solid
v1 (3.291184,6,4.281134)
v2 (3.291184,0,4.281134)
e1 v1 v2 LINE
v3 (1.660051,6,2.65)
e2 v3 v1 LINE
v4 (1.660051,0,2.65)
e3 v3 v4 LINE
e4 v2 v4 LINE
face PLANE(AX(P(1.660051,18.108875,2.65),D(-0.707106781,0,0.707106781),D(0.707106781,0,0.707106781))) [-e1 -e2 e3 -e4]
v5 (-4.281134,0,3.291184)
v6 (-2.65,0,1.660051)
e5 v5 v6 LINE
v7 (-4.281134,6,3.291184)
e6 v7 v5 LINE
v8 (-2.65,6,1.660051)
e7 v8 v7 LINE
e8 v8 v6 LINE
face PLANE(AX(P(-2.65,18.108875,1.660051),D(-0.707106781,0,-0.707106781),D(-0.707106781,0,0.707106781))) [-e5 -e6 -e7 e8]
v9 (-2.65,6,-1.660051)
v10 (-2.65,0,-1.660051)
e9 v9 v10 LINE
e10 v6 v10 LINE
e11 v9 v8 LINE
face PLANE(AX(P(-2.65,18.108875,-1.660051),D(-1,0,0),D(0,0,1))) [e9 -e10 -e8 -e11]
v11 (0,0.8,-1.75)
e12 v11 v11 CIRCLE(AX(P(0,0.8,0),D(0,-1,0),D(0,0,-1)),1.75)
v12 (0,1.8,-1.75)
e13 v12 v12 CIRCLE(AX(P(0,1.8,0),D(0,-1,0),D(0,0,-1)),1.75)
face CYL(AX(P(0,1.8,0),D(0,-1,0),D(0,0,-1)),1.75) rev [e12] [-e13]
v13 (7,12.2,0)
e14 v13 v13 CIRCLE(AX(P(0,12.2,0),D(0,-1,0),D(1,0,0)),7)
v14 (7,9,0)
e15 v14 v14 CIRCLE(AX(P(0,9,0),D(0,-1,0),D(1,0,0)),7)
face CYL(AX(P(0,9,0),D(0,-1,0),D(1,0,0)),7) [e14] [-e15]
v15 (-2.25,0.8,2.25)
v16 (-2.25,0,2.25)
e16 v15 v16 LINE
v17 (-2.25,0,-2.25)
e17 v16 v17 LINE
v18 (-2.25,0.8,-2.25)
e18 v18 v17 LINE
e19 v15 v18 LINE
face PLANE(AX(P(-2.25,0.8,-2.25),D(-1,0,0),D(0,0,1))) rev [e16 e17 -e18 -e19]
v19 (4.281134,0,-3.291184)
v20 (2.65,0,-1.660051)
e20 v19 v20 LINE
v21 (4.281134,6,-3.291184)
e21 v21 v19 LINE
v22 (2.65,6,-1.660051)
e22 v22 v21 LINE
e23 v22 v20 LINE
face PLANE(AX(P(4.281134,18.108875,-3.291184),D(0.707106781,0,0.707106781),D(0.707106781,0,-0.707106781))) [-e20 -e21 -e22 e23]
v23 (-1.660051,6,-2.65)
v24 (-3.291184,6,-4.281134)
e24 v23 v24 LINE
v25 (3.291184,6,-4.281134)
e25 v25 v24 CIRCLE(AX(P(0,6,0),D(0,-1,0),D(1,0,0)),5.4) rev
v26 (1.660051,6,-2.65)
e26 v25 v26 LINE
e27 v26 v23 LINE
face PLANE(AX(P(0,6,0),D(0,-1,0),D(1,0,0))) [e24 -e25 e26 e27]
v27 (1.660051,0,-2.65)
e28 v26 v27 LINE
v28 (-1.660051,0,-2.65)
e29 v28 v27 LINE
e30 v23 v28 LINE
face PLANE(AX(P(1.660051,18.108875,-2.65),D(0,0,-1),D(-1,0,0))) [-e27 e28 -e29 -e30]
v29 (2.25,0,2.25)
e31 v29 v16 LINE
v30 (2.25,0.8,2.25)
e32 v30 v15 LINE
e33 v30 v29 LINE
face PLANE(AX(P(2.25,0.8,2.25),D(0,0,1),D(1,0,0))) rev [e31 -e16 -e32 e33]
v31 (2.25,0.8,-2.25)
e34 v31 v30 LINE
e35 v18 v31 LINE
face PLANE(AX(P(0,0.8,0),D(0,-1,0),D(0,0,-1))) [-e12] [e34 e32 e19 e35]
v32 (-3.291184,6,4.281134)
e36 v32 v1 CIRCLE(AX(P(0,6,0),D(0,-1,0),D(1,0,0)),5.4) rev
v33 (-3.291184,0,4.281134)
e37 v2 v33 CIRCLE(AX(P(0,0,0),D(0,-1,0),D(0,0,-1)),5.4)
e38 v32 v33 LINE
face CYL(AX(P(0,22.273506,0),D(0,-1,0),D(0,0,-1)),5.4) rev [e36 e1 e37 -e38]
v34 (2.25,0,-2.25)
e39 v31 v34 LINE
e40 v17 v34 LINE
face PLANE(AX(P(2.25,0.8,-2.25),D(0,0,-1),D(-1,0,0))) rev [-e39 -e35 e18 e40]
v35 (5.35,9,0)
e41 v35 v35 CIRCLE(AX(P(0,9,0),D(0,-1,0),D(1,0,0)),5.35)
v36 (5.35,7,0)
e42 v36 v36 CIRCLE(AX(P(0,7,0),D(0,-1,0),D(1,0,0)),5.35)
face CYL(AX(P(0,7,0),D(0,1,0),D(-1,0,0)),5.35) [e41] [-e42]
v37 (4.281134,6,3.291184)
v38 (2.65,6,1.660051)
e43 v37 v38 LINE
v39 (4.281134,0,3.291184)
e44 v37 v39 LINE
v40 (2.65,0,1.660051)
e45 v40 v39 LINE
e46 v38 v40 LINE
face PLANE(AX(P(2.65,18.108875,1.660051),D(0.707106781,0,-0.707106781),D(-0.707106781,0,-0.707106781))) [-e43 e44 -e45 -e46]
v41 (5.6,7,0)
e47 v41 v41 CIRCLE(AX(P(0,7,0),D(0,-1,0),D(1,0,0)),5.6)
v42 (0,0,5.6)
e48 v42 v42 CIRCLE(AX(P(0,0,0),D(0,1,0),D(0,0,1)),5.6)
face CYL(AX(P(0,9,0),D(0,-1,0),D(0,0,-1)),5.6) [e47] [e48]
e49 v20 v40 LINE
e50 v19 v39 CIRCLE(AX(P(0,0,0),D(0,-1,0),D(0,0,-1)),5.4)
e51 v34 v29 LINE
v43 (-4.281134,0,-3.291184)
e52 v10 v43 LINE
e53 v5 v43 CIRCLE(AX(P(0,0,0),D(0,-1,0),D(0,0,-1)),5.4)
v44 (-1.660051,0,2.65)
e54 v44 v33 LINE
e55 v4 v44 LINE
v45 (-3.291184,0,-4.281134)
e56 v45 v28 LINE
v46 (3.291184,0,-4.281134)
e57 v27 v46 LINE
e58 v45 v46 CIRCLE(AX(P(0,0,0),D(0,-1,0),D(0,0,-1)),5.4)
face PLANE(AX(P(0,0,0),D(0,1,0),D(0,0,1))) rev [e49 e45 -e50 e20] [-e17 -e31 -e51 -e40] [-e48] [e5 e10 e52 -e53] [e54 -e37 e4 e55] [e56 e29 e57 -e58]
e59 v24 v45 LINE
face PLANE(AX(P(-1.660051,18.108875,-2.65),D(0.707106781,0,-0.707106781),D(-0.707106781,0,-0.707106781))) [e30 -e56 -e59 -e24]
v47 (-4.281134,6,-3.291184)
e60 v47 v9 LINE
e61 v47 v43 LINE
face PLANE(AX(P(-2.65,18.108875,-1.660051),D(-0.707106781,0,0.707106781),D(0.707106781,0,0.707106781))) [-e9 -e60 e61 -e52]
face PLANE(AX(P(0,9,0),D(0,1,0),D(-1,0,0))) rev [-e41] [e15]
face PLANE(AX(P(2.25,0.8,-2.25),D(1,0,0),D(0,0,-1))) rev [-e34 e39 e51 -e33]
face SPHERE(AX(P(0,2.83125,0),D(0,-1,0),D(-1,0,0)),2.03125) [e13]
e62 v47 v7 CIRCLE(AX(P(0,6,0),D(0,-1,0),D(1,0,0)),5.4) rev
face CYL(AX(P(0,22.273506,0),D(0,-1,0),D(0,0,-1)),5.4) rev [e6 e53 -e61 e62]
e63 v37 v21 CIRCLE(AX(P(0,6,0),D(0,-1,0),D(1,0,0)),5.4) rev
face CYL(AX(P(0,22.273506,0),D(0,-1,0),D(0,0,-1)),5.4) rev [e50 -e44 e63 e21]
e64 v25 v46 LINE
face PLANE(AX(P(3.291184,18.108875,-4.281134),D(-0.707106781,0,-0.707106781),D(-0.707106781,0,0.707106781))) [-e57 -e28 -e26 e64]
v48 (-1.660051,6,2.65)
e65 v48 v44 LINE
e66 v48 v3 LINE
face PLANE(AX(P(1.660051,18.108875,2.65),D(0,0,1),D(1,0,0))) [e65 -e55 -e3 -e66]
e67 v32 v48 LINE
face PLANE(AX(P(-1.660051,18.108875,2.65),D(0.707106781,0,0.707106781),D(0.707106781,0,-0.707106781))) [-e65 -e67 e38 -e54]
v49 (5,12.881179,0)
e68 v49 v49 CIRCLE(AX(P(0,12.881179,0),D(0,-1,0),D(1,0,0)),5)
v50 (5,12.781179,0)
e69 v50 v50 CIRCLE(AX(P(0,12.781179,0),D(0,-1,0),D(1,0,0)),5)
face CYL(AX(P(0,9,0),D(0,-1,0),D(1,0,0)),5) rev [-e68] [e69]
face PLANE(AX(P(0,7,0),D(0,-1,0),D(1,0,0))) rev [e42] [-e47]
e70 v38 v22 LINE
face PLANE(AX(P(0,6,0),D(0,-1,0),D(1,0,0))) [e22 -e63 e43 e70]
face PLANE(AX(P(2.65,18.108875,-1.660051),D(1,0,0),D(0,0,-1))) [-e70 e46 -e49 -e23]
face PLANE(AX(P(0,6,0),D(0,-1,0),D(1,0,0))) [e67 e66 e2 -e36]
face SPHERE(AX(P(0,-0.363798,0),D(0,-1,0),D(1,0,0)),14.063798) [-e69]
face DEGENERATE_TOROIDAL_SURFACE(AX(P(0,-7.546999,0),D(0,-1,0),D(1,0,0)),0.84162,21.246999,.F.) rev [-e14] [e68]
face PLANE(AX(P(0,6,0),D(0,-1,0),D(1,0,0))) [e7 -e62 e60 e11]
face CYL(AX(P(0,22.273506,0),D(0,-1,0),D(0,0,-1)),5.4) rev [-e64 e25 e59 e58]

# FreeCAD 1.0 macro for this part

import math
import FreeCAD as App
import Part
import Sketcher
Q = App.Units.Quantity

doc = App.newDocument("Part")
body = doc.addObject("PartDesign::Body", "Body")

# Sketch on XZ plane
sketch1 = body.newObject("Sketcher::SketchObject", "Sketch")
sketch1.AttachmentSupport = (doc.getObject("XZ_Plane"), [""])
sketch1.MapMode = "FlatFace"
sketch1.addGeometry(Part.Circle(App.Vector(0, 0, 0), App.Vector(0, 0, 1), 5.6), False)
sketch1.addConstraint(Sketcher.Constraint("Coincident", 0, 3, -1, 1))
sketch1.addConstraint(Sketcher.Constraint("Diameter", 0, Q("11.2 mm")))
pad1 = body.newObject("PartDesign::Pad", "Pad")
pad1.Profile = sketch1
pad1.Length = 9
pad1.Reversed = True

# Sketch on XY plane
sketch2 = body.newObject("Sketcher::SketchObject", "Sketch001")
sketch2.AttachmentSupport = (doc.getObject("XY_Plane"), [""])
sketch2.MapMode = "FlatFace"
sketch2.addGeometry(Part.LineSegment(App.Vector(0, 9, 0), App.Vector(0, 13.7, 0)), False)
sketch2.addGeometry(Part.ArcOfCircle(Part.Circle(App.Vector(0, -0.363798, 0), App.Vector(0, 0, 1), 14.063798), math.radians(90), math.radians(110.825485)), False)
sketch2.addGeometry(Part.LineSegment(App.Vector(-5, 12.781179, 0), App.Vector(-5, 12.881179, 0)), False)
sketch2.addGeometry(Part.ArcOfCircle(Part.Circle(App.Vector(0.84162, -7.546999, 0), App.Vector(0, 0, 1), 21.246999), math.radians(105.958353), math.radians(111.658243)), False)
sketch2.addGeometry(Part.LineSegment(App.Vector(-7, 12.2, 0), App.Vector(-7, 9, 0)), False)
sketch2.addGeometry(Part.LineSegment(App.Vector(-7, 9, 0), App.Vector(0, 9, 0)), False)
sketch2.addConstraint(Sketcher.Constraint("Coincident", 0, 2, 1, 1))
sketch2.addConstraint(Sketcher.Constraint("Coincident", 1, 2, 2, 1))
sketch2.addConstraint(Sketcher.Constraint("Coincident", 2, 2, 3, 1))
sketch2.addConstraint(Sketcher.Constraint("Coincident", 3, 2, 4, 1))
sketch2.addConstraint(Sketcher.Constraint("Coincident", 4, 2, 5, 1))
sketch2.addConstraint(Sketcher.Constraint("Coincident", 5, 2, 0, 1))
sketch2.addConstraint(Sketcher.Constraint("Vertical", 0))
sketch2.addConstraint(Sketcher.Constraint("Vertical", 2))
sketch2.addConstraint(Sketcher.Constraint("Vertical", 4))
sketch2.addConstraint(Sketcher.Constraint("Horizontal", 5))
sketch2.addConstraint(Sketcher.Constraint("PointOnObject", 1, 3, -2))
sketch2.addConstraint(Sketcher.Constraint("PointOnObject", 0, 2, -2))
sketch2.addConstraint(Sketcher.Constraint("DistanceX", 5, 1, 5, 2, Q("7 mm")))
sketch2.addConstraint(Sketcher.Constraint("DistanceY", 0, 1, 0, 2, Q("4.7 mm")))
sketch2.addConstraint(Sketcher.Constraint("DistanceY", 2, 1, 2, 2, Q("0.1 mm")))
sketch2.addConstraint(Sketcher.Constraint("DistanceY", 4, 2, 4, 1, Q("3.2 mm")))
sketch2.addConstraint(Sketcher.Constraint("DistanceX", 1, 2, -1, 1, Q("5 mm")))
sketch2.addConstraint(Sketcher.Constraint("DistanceY", -1, 1, 4, 2, Q("9 mm")))
sketch2.addConstraint(Sketcher.Constraint("Radius", 3, Q("21.246999 mm")))
sketch2.addConstraint(Sketcher.Constraint("Radius", 1, Q("14.063798 mm")))
revolution = body.newObject("PartDesign::Revolution", "Revolution")
revolution.Profile = sketch2
revolution.ReferenceAxis = (sketch2, ["V_Axis"])
revolution.Angle = 360

# Sketch on XZ plane
sketch3 = body.newObject("Sketcher::SketchObject", "Sketch002")
sketch3.AttachmentSupport = (doc.getObject("XZ_Plane"), [""])
sketch3.MapMode = "FlatFace"
sketch3.AttachmentOffset = App.Placement(App.Vector(0, 0, -9), App.Rotation())
sketch3.addGeometry(Part.Circle(App.Vector(0, 0, 0), App.Vector(0, 0, 1), 5.6), False)
sketch3.addGeometry(Part.Circle(App.Vector(0, 0, 0), App.Vector(0, 0, 1), 5.35), False)
sketch3.addConstraint(Sketcher.Constraint("Coincident", 0, 3, -1, 1))
sketch3.addConstraint(Sketcher.Constraint("Coincident", 1, 3, -1, 1))
sketch3.addConstraint(Sketcher.Constraint("Diameter", 0, Q("11.2 mm")))
sketch3.addConstraint(Sketcher.Constraint("Diameter", 1, Q("10.7 mm")))
pocket1 = body.newObject("PartDesign::Pocket", "Pocket")
pocket1.Profile = sketch3
pocket1.Length = 2
pocket1.Reversed = True

# Sketch on XZ plane
sketch4 = body.newObject("Sketcher::SketchObject", "Sketch003")
sketch4.AttachmentSupport = (doc.getObject("XZ_Plane"), [""])
sketch4.MapMode = "FlatFace"
sketch4.addGeometry(Part.Circle(App.Vector(0, 0, 0), App.Vector(0, 0, 1), 5.4), False)
sketch4.addConstraint(Sketcher.Constraint("Coincident", 0, 3, -1, 1))
sketch4.addConstraint(Sketcher.Constraint("Diameter", 0, Q("10.8 mm")))
pocket2 = body.newObject("PartDesign::Pocket", "Pocket001")
pocket2.Profile = sketch4
pocket2.Length = 6

# Sketch on XZ plane
sketch5 = body.newObject("Sketcher::SketchObject", "Sketch004")
sketch5.AttachmentSupport = (doc.getObject("XZ_Plane"), [""])
sketch5.MapMode = "FlatFace"
sketch5.addGeometry(Part.LineSegment(App.Vector(1.660051, -2.65, 0), App.Vector(3.291184, -4.281134, 0)), False)
sketch5.addGeometry(Part.ArcOfCircle(Part.Circle(App.Vector(0, 0, 0), App.Vector(0, 0, 1), 5.4), math.radians(-52.44819), math.radians(-37.55181)), False)
sketch5.addGeometry(Part.LineSegment(App.Vector(4.281134, -3.291184, 0), App.Vector(2.65, -1.660051, 0)), False)
sketch5.addGeometry(Part.LineSegment(App.Vector(2.65, -1.660051, 0), App.Vector(2.65, 1.660051, 0)), False)
sketch5.addGeometry(Part.LineSegment(App.Vector(2.65, 1.660051, 0), App.Vector(4.281134, 3.291184, 0)), False)
sketch5.addGeometry(Part.ArcOfCircle(Part.Circle(App.Vector(0, 0, 0), App.Vector(0, 0, 1), 5.4), math.radians(37.55181), math.radians(52.44819)), False)
sketch5.addGeometry(Part.LineSegment(App.Vector(3.291184, 4.281134, 0), App.Vector(1.660051, 2.65, 0)), False)
sketch5.addGeometry(Part.LineSegment(App.Vector(1.660051, 2.65, 0), App.Vector(-1.660051, 2.65, 0)), False)
sketch5.addGeometry(Part.LineSegment(App.Vector(-1.660051, 2.65, 0), App.Vector(-3.291184, 4.281134, 0)), False)
sketch5.addGeometry(Part.ArcOfCircle(Part.Circle(App.Vector(0, 0, 0), App.Vector(0, 0, 1), 5.4), math.radians(127.55181), math.radians(142.44819)), False)
sketch5.addGeometry(Part.LineSegment(App.Vector(-4.281134, 3.291184, 0), App.Vector(-2.65, 1.660051, 0)), False)
sketch5.addGeometry(Part.LineSegment(App.Vector(-2.65, 1.660051, 0), App.Vector(-2.65, -1.660051, 0)), False)
sketch5.addGeometry(Part.LineSegment(App.Vector(-2.65, -1.660051, 0), App.Vector(-4.281134, -3.291184, 0)), False)
sketch5.addGeometry(Part.ArcOfCircle(Part.Circle(App.Vector(0, 0, 0), App.Vector(0, 0, 1), 5.4), math.radians(-142.44819), math.radians(-127.55181)), False)
sketch5.addGeometry(Part.LineSegment(App.Vector(-3.291184, -4.281134, 0), App.Vector(-1.660051, -2.65, 0)), False)
sketch5.addGeometry(Part.LineSegment(App.Vector(-1.660051, -2.65, 0), App.Vector(1.660051, -2.65, 0)), False)
sketch5.addConstraint(Sketcher.Constraint("Coincident", 0, 2, 1, 1))
sketch5.addConstraint(Sketcher.Constraint("Coincident", 1, 2, 2, 1))
sketch5.addConstraint(Sketcher.Constraint("Coincident", 2, 2, 3, 1))
sketch5.addConstraint(Sketcher.Constraint("Coincident", 3, 2, 4, 1))
sketch5.addConstraint(Sketcher.Constraint("Coincident", 4, 2, 5, 1))
sketch5.addConstraint(Sketcher.Constraint("Coincident", 5, 2, 6, 1))
sketch5.addConstraint(Sketcher.Constraint("Coincident", 6, 2, 7, 1))
sketch5.addConstraint(Sketcher.Constraint("Coincident", 7, 2, 8, 1))
sketch5.addConstraint(Sketcher.Constraint("Coincident", 8, 2, 9, 1))
sketch5.addConstraint(Sketcher.Constraint("Coincident", 9, 2, 10, 1))
sketch5.addConstraint(Sketcher.Constraint("Coincident", 10, 2, 11, 1))
sketch5.addConstraint(Sketcher.Constraint("Coincident", 11, 2, 12, 1))
sketch5.addConstraint(Sketcher.Constraint("Coincident", 12, 2, 13, 1))
sketch5.addConstraint(Sketcher.Constraint("Coincident", 13, 2, 14, 1))
sketch5.addConstraint(Sketcher.Constraint("Coincident", 14, 2, 15, 1))
sketch5.addConstraint(Sketcher.Constraint("Coincident", 15, 2, 0, 1))
sketch5.addConstraint(Sketcher.Constraint("Vertical", 3))
sketch5.addConstraint(Sketcher.Constraint("Horizontal", 7))
sketch5.addConstraint(Sketcher.Constraint("Vertical", 11))
sketch5.addConstraint(Sketcher.Constraint("Horizontal", 15))
sketch5.addConstraint(Sketcher.Constraint("Coincident", 1, 3, -1, 1))
sketch5.addConstraint(Sketcher.Constraint("Coincident", 5, 3, -1, 1))
sketch5.addConstraint(Sketcher.Constraint("Coincident", 9, 3, -1, 1))
sketch5.addConstraint(Sketcher.Constraint("Coincident", 13, 3, -1, 1))
sketch5.addConstraint(Sketcher.Constraint("Equal", 1, 5))
sketch5.addConstraint(Sketcher.Constraint("Equal", 5, 9))
sketch5.addConstraint(Sketcher.Constraint("Equal", 9, 13))
sketch5.addConstraint(Sketcher.Constraint("Symmetric", 2, 2, 10, 2, -1, 1))
sketch5.addConstraint(Sketcher.Constraint("Symmetric", 6, 2, 14, 2, -1, 1))
sketch5.addConstraint(Sketcher.Constraint("Parallel", 0, 2))
sketch5.addConstraint(Sketcher.Constraint("Perpendicular", 2, 4))
sketch5.addConstraint(Sketcher.Constraint("Parallel", 4, 6))
sketch5.addConstraint(Sketcher.Constraint("Perpendicular", 6, 8))
sketch5.addConstraint(Sketcher.Constraint("Parallel", 8, 10))
sketch5.addConstraint(Sketcher.Constraint("Perpendicular", 10, 12))
sketch5.addConstraint(Sketcher.Constraint("Parallel", 12, 14))
sketch5.addConstraint(Sketcher.Constraint("Horizontal", 5, 2, 8, 2))
sketch5.addConstraint(Sketcher.Constraint("Horizontal", 4, 2, 9, 2))
sketch5.addConstraint(Sketcher.Constraint("Horizontal", 3, 2, 10, 2))
sketch5.addConstraint(Sketcher.Constraint("Horizontal", 2, 2, 11, 2))
sketch5.addConstraint(Sketcher.Constraint("Horizontal", 0, 2, 13, 2))
sketch5.addConstraint(Sketcher.Constraint("Equal", 15, 3))
sketch5.addConstraint(Sketcher.Constraint("Equal", 0, 2))
sketch5.addConstraint(Sketcher.Constraint("Radius", 1, Q("5.4 mm")))
sketch5.addConstraint(Sketcher.Constraint("DistanceX", -1, 1, 2, 2, Q("2.65 mm")))
sketch5.addConstraint(Sketcher.Constraint("DistanceX", 7, 2, 7, 1, Q("3.320101 mm")))
pad2 = body.newObject("PartDesign::Pad", "Pad001")
pad2.Profile = sketch5
pad2.Length = 6
pad2.Reversed = True

# Sketch on XZ plane
sketch6 = body.newObject("Sketcher::SketchObject", "Sketch005")
sketch6.AttachmentSupport = (doc.getObject("XZ_Plane"), [""])
sketch6.MapMode = "FlatFace"
sketch6.addGeometry(Part.LineSegment(App.Vector(-2.25, 2.25, 0), App.Vector(-2.25, -2.25, 0)), False)
sketch6.addGeometry(Part.LineSegment(App.Vector(-2.25, -2.25, 0), App.Vector(2.25, -2.25, 0)), False)
sketch6.addGeometry(Part.LineSegment(App.Vector(2.25, -2.25, 0), App.Vector(2.25, 2.25, 0)), False)
sketch6.addGeometry(Part.LineSegment(App.Vector(2.25, 2.25, 0), App.Vector(-2.25, 2.25, 0)), False)
sketch6.addConstraint(Sketcher.Constraint("Coincident", 0, 2, 1, 1))
sketch6.addConstraint(Sketcher.Constraint("Coincident", 1, 2, 2, 1))
sketch6.addConstraint(Sketcher.Constraint("Coincident", 2, 2, 3, 1))
sketch6.addConstraint(Sketcher.Constraint("Coincident", 3, 2, 0, 1))
sketch6.addConstraint(Sketcher.Constraint("Vertical", 0))
sketch6.addConstraint(Sketcher.Constraint("Horizontal", 1))
sketch6.addConstraint(Sketcher.Constraint("Vertical", 2))
sketch6.addConstraint(Sketcher.Constraint("Horizontal", 3))
sketch6.addConstraint(Sketcher.Constraint("Symmetric", 0, 2, 2, 2, -1, 1))
sketch6.addConstraint(Sketcher.Constraint("Equal", 3, 0))
sketch6.addConstraint(Sketcher.Constraint("DistanceX", 1, 1, 1, 2, Q("4.5 mm")))
pocket3 = body.newObject("PartDesign::Pocket", "Pocket002")
pocket3.Profile = sketch6
pocket3.Length = 0.8

# Sketch on XZ plane
sketch7 = body.newObject("Sketcher::SketchObject", "Sketch006")
sketch7.AttachmentSupport = (doc.getObject("XZ_Plane"), [""])
sketch7.MapMode = "FlatFace"
sketch7.AttachmentOffset = App.Placement(App.Vector(0, 0, -0.8), App.Rotation())
sketch7.addGeometry(Part.Circle(App.Vector(0, 0, 0), App.Vector(0, 0, 1), 1.75), False)
sketch7.addConstraint(Sketcher.Constraint("Coincident", 0, 3, -1, 1))
sketch7.addConstraint(Sketcher.Constraint("Diameter", 0, Q("3.5 mm")))
pocket4 = body.newObject("PartDesign::Pocket", "Pocket003")
pocket4.Profile = sketch7
pocket4.Length = 1

# Sketch on XY plane
sketch8 = body.newObject("Sketcher::SketchObject", "Sketch007")
sketch8.AttachmentSupport = (doc.getObject("XY_Plane"), [""])
sketch8.MapMode = "FlatFace"
sketch8.addGeometry(Part.LineSegment(App.Vector(0, 0.8, 0), App.Vector(0, 1.8, 0)), False)
sketch8.addGeometry(Part.LineSegment(App.Vector(0, 1.8, 0), App.Vector(-1.75, 1.8, 0)), False)
sketch8.addGeometry(Part.ArcOfCircle(Part.Circle(App.Vector(0, 2.83125, 0), App.Vector(0, 0, 1), 2.03125), math.radians(-149.489763), math.radians(-90)), False)
sketch8.addConstraint(Sketcher.Constraint("Coincident", 0, 2, 1, 1))
sketch8.addConstraint(Sketcher.Constraint("Coincident", 1, 2, 2, 1))
sketch8.addConstraint(Sketcher.Constraint("Coincident", 2, 2, 0, 1))
sketch8.addConstraint(Sketcher.Constraint("Vertical", 0))
sketch8.addConstraint(Sketcher.Constraint("Horizontal", 1))
sketch8.addConstraint(Sketcher.Constraint("PointOnObject", 2, 3, -2))
sketch8.addConstraint(Sketcher.Constraint("PointOnObject", 0, 2, -2))
sketch8.addConstraint(Sketcher.Constraint("DistanceY", 0, 1, 0, 2, Q("1 mm")))
sketch8.addConstraint(Sketcher.Constraint("DistanceX", 1, 2, 1, 1, Q("1.75 mm")))
sketch8.addConstraint(Sketcher.Constraint("DistanceY", -1, 1, 0, 2, Q("1.8 mm")))
revolution2 = body.newObject("PartDesign::Revolution", "Revolution001")
revolution2.Profile = sketch8
revolution2.ReferenceAxis = (sketch8, ["V_Axis"])
revolution2.Angle = 360

doc.recompute()
